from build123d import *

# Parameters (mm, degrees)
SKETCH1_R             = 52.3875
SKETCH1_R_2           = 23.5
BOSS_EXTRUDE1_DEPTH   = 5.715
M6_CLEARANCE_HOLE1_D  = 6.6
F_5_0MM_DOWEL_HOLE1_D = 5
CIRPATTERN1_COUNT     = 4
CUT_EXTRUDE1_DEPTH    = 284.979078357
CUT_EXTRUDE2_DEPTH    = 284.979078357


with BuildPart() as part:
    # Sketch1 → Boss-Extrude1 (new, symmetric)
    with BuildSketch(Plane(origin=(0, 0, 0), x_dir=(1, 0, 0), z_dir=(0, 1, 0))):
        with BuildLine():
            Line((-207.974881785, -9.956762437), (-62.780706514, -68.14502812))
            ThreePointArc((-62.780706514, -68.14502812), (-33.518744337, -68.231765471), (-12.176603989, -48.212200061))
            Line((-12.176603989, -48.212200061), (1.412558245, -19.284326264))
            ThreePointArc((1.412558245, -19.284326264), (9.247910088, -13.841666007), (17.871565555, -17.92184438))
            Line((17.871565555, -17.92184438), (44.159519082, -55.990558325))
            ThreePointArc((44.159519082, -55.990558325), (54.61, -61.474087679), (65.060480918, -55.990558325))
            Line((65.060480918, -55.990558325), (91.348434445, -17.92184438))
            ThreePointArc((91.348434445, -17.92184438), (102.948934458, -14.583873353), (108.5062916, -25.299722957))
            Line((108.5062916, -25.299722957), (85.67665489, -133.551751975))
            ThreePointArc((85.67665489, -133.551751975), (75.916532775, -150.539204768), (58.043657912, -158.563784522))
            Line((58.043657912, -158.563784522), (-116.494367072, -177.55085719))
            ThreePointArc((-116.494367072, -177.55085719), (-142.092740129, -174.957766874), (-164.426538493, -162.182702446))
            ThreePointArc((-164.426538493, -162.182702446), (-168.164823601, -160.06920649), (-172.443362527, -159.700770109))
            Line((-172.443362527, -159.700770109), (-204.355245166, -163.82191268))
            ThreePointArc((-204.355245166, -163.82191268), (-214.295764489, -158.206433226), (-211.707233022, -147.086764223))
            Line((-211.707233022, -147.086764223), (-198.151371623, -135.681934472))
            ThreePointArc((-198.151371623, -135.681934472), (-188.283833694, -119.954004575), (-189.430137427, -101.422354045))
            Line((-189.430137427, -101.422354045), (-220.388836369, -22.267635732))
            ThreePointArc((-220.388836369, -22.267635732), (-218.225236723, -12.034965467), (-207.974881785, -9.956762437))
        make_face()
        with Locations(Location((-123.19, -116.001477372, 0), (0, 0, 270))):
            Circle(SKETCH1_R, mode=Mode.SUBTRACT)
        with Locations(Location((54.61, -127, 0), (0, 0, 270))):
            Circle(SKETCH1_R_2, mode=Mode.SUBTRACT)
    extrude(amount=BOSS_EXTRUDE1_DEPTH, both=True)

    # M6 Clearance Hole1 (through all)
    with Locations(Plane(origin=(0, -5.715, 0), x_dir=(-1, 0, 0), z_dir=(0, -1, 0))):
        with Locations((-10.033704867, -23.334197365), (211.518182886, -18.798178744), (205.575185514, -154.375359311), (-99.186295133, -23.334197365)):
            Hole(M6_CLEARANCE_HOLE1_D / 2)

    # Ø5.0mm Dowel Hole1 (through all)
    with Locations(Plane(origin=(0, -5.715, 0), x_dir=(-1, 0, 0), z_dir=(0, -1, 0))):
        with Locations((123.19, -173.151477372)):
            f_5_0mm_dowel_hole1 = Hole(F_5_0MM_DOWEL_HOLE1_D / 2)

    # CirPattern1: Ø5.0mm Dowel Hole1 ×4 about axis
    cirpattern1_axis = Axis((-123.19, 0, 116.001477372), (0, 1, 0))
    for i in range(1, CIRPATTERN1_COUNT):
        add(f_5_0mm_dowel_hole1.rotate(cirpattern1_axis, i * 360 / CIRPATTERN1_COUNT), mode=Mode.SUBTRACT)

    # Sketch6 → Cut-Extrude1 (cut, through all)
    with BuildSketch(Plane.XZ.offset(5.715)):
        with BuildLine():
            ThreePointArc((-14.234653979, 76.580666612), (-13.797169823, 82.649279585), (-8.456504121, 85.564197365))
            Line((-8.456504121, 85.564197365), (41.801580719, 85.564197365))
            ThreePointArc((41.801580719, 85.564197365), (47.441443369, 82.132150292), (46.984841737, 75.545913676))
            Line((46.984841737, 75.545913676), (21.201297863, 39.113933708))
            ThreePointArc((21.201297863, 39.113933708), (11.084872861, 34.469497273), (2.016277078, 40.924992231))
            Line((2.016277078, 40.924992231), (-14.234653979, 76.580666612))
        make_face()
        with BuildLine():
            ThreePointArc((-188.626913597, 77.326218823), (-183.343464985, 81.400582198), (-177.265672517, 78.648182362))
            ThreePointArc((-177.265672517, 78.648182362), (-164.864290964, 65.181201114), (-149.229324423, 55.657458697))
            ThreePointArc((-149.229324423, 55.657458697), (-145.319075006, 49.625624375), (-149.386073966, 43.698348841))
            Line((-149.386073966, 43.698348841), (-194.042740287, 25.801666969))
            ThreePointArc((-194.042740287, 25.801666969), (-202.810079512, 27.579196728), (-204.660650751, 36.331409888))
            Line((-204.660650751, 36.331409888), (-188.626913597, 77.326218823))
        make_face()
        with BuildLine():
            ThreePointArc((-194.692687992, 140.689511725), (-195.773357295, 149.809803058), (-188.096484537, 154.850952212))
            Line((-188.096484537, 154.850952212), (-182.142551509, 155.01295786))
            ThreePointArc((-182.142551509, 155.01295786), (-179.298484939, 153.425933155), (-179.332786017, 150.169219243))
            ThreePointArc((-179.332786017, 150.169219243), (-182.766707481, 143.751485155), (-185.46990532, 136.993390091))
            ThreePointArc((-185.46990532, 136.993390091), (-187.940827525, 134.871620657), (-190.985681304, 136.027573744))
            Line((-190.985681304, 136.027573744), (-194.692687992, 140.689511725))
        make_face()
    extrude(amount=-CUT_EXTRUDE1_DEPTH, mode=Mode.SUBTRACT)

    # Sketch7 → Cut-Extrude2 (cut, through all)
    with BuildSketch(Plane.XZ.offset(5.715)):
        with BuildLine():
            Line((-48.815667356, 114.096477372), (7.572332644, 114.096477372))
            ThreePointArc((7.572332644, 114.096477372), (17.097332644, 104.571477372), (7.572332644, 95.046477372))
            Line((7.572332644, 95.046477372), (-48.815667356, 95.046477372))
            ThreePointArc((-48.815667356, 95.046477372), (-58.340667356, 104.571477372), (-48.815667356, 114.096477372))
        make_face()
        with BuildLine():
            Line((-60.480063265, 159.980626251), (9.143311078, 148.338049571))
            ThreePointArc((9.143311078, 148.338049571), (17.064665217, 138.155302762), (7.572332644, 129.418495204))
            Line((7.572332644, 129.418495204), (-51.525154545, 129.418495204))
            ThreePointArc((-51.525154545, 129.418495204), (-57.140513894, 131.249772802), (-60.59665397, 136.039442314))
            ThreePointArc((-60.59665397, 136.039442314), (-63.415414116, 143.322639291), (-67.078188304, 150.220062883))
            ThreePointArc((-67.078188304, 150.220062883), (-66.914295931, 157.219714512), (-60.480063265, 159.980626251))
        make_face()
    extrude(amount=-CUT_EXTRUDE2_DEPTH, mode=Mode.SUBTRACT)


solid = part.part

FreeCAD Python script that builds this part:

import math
import FreeCAD as App
import Part
import Sketcher
Q = App.Units.Quantity

doc = App.newDocument("Part")
body = doc.addObject("PartDesign::Body", "Body")

sketch1 = body.newObject("Sketcher::SketchObject", "Sketch")
sketch1.AttachmentSupport = (doc.getObject("XZ_Plane"), [""])
sketch1.MapMode = "FlatFace"
sketch1.addGeometry(Part.LineSegment(App.Vector(-62.780707, 68.145028, 0), App.Vector(-207.974882, 9.956762, 0)), False)
sketch1.addGeometry(Part.ArcOfCircle(Part.Circle(App.Vector(-211.518183, 18.798179, 0), App.Vector(0, 0, 1), 9.525), math.radians(158.638723), math.radians(291.839023)), False)
sketch1.addGeometry(Part.LineSegment(App.Vector(-220.388836, 22.267636, 0), App.Vector(-189.430137, 101.422354, 0)), False)
sketch1.addGeometry(Part.ArcOfCircle(Part.Circle(App.Vector(-217.679198, 112.471022, 0), App.Vector(0, 0, 1), 30.332861), math.radians(-21.361277), math.radians(49.925396)), False)
sketch1.addGeometry(Part.LineSegment(App.Vector(-198.151372, 135.681934, 0), App.Vector(-211.707233, 147.086764, 0)), False)
sketch1.addGeometry(Part.ArcOfCircle(Part.Circle(App.Vector(-205.575186, 154.375359, 0), App.Vector(0, 0, 1), 9.525), math.radians(82.641474), math.radians(229.925396)), False)
sketch1.addGeometry(Part.LineSegment(App.Vector(-204.355245, 163.821913, 0), App.Vector(-172.443363, 159.70077, 0)), False)
sketch1.addGeometry(Part.ArcOfCircle(Part.Circle(App.Vector(-171.150394, 169.712817, 0), App.Vector(0, 0, 1), 10.09519), math.radians(-97.358526), math.radians(-48.237421)), False)
sketch1.addGeometry(Part.ArcOfCircle(Part.Circle(App.Vector(-123.19, 116.001477, 0), App.Vector(0, 0, 1), 61.9125), math.radians(83.791508), math.radians(131.762579)), False)
sketch1.addGeometry(Part.LineSegment(App.Vector(-116.494367, 177.550857, 0), App.Vector(58.043658, 158.563785, 0)), False)
sketch1.addGeometry(Part.ArcOfCircle(Part.Circle(App.Vector(54.61, 127, 0), App.Vector(0, 0, 1), 31.75), math.radians(11.908795), math.radians(83.791508)), False)
sketch1.addGeometry(Part.LineSegment(App.Vector(85.676655, 133.551752, 0), App.Vector(108.506292, 25.299723, 0)), False)
sketch1.addGeometry(Part.ArcOfCircle(Part.Circle(App.Vector(99.186295, 23.334197, 0), App.Vector(0, 0, 1), 9.525), math.radians(-145.373386), math.radians(11.908795)), False)
sketch1.addGeometry(Part.LineSegment(App.Vector(91.348434, 17.921844, 0), App.Vector(65.060481, 55.990558, 0)), False)
sketch1.addGeometry(Part.ArcOfCircle(Part.Circle(App.Vector(54.61, 48.774088, 0), App.Vector(0, 0, 1), 12.7), math.radians(34.626614), math.radians(145.373386)), False)
sketch1.addGeometry(Part.LineSegment(App.Vector(44.159519, 55.990558, 0), App.Vector(17.871566, 17.921844, 0)), False)
sketch1.addGeometry(Part.ArcOfCircle(Part.Circle(App.Vector(10.033705, 23.334197, 0), App.Vector(0, 0, 1), 9.525), math.radians(-154.837733), math.radians(-34.626614)), False)
sketch1.addGeometry(Part.LineSegment(App.Vector(1.412558, 19.284326, 0), App.Vector(-12.176604, 48.2122, 0)), False)
sketch1.addGeometry(Part.ArcOfCircle(Part.Circle(App.Vector(-48.040574, 31.364736, 0), App.Vector(0, 0, 1), 39.624), math.radians(25.162267), math.radians(111.839023)), False)
sketch1.addGeometry(Part.Circle(App.Vector(54.61, 127, 0), App.Vector(0, 0, 1), 23.5), False)
sketch1.addGeometry(Part.Circle(App.Vector(-123.19, 116.001477, 0), App.Vector(0, 0, 1), 52.3875), False)
sketch1.addConstraint(Sketcher.Constraint("Coincident", 0, 2, 1, 2))
sketch1.addConstraint(Sketcher.Constraint("Coincident", 1, 1, 2, 1))
sketch1.addConstraint(Sketcher.Constraint("Coincident", 2, 2, 3, 1))
sketch1.addConstraint(Sketcher.Constraint("Coincident", 3, 2, 4, 1))
sketch1.addConstraint(Sketcher.Constraint("Coincident", 4, 2, 5, 2))
sketch1.addConstraint(Sketcher.Constraint("Coincident", 5, 1, 6, 1))
sketch1.addConstraint(Sketcher.Constraint("Coincident", 6, 2, 7, 1))
sketch1.addConstraint(Sketcher.Constraint("Coincident", 7, 2, 8, 2))
sketch1.addConstraint(Sketcher.Constraint("Coincident", 8, 1, 9, 1))
sketch1.addConstraint(Sketcher.Constraint("Coincident", 9, 2, 10, 2))
sketch1.addConstraint(Sketcher.Constraint("Coincident", 10, 1, 11, 1))
sketch1.addConstraint(Sketcher.Constraint("Coincident", 11, 2, 12, 2))
sketch1.addConstraint(Sketcher.Constraint("Coincident", 12, 1, 13, 1))
sketch1.addConstraint(Sketcher.Constraint("Coincident", 13, 2, 14, 1))
sketch1.addConstraint(Sketcher.Constraint("Coincident", 14, 2, 15, 1))
sketch1.addConstraint(Sketcher.Constraint("Coincident", 15, 2, 16, 2))
sketch1.addConstraint(Sketcher.Constraint("Coincident", 16, 1, 17, 1))
sketch1.addConstraint(Sketcher.Constraint("Coincident", 17, 2, 18, 1))
sketch1.addConstraint(Sketcher.Constraint("Coincident", 18, 2, 0, 1))
sketch1.addConstraint(Sketcher.Constraint("Coincident", 19, 3, 10, 3))
sketch1.addConstraint(Sketcher.Constraint("Coincident", 20, 3, 8, 3))
sketch1.addConstraint(Sketcher.Constraint("Radius", 14, Q("0.5 in")))
sketch1.addConstraint(Sketcher.Constraint("Radius", 10, Q("1.25 in")))
sketch1.addConstraint(Sketcher.Constraint("Radius", 18, Q("1.56 in")))
sketch1.addConstraint(Sketcher.Constraint("Diameter", 20, Q("4.125 in")))
sketch1.addConstraint(Sketcher.Constraint("DistanceY", -1, 1, 10, 3, Q("5 in")))
sketch1.addConstraint(Sketcher.Constraint("Radius", 1, Q("0.375 in")))
sketch1.addConstraint(Sketcher.Constraint("Radius", 5, Q("0.375 in")))
sketch1.addConstraint(Sketcher.Constraint("Radius", 8, Q("2.4375 in")))
sketch1.addConstraint(Sketcher.Constraint("Radius", 12, Q("0.375 in")))
sketch1.addConstraint(Sketcher.Constraint("Radius", 16, Q("0.375 in")))
sketch1.addConstraint(Sketcher.Constraint("DistanceX", 8, 3, 10, 3, Q("7 in")))
sketch1.addConstraint(Sketcher.Constraint("DistanceX", 8, 3, 14, 3, Q("7 in")))
sketch1.addConstraint(Sketcher.Constraint("Diameter", 19, Q("47 mm")))
sketch1.addConstraint(Sketcher.Constraint("DistanceX", 8, 3, -1, 1, Q("4.85 in")))
sketch1.addConstraint(Sketcher.Constraint("Radius", 3, Q("30.332861 mm")))
sketch1.addConstraint(Sketcher.Constraint("Radius", 7, Q("10.09519 mm")))
sketch1.addConstraint(Sketcher.Constraint("DistanceX", 1, 3, 0, 2, Q("0.1395 in")))
sketch1.addConstraint(Sketcher.Constraint("DistanceX", 3, 3, -1, 1, Q("217.679198 mm")))
sketch1.addConstraint(Sketcher.Constraint("DistanceY", -1, 1, 17, 2, Q("48.2122 mm")))
sketch1.addConstraint(Sketcher.Constraint("DistanceY", 1, 3, 8, 3, Q("97.203299 mm")))
sketch1.addConstraint(Sketcher.Constraint("DistanceY", 16, 1, 18, 2, Q("48.860702 mm")))
sketch1.addConstraint(Sketcher.Constraint("Distance", 0, Q("156.42002 mm")))
sketch1.addConstraint(Sketcher.Constraint("Distance", 2, Q("84.993591 mm")))
sketch1.addConstraint(Sketcher.Constraint("Distance", 4, Q("17.715291 mm")))
sketch1.addConstraint(Sketcher.Constraint("Distance", 9, Q("175.567739 mm")))
sketch1.addConstraint(Sketcher.Constraint("Distance", 11, Q("110.633151 mm")))
sketch1.addConstraint(Sketcher.Constraint("DistanceY", -1, 1, 1, 3, Q("18.798179 mm")))
sketch1.addConstraint(Sketcher.Constraint("DistanceY", -1, 1, 3, 3, Q("112.471022 mm")))
sketch1.addConstraint(Sketcher.Constraint("DistanceY", -1, 1, 5, 3, Q("154.375359 mm")))
sketch1.addConstraint(Sketcher.Constraint("DistanceX", 0, 2, -1, 1, Q("207.974882 mm")))
sketch1.addConstraint(Sketcher.Constraint("DistanceX", 3, 2, -1, 1, Q("198.151372 mm")))
sketch1.addConstraint(Sketcher.Constraint("DistanceY", -1, 1, 6, 2, Q("159.70077 mm")))
sketch1.addConstraint(Sketcher.Constraint("DistanceX", 7, 2, -1, 1, Q("164.426538 mm")))
sketch1.addConstraint(Sketcher.Constraint("DistanceY", -1, 1, 10, 1, Q("133.551752 mm")))
sketch1.addConstraint(Sketcher.Constraint("DistanceX", -1, 1, 11, 2, Q("108.506292 mm")))
sketch1.addConstraint(Sketcher.Constraint("DistanceX", -1, 1, 13, 2, Q("65.060481 mm")))
sketch1.addConstraint(Sketcher.Constraint("DistanceY", -1, 1, 13, 2, Q("55.990558 mm")))
sketch1.addConstraint(Sketcher.Constraint("DistanceX", -1, 1, 14, 2, Q("44.159519 mm")))
sketch1.addConstraint(Sketcher.Constraint("DistanceX", -1, 1, 16, 1, Q("1.412558 mm")))
sketch1.addConstraint(Sketcher.Constraint("DistanceY", -1, 1, 18, 2, Q("68.145028 mm")))
sketch1.addConstraint(Sketcher.Constraint("DistanceX", 5, 3, 7, 3, Q("34.424792 mm")))
sketch1.addConstraint(Sketcher.Constraint("DistanceX", 1, 3, 7, 3, Q("40.367789 mm")))
sketch1.addConstraint(Sketcher.Constraint("DistanceY", 12, 3, 8, 3, Q("92.66728 mm")))
sketch1.addConstraint(Sketcher.Constraint("DistanceY", 16, 3, 14, 3, Q("25.43989 mm")))
sketch1.addConstraint(Sketcher.Constraint("DistanceX", 18, 3, 16, 3, Q("58.074279 mm")))
sketch1.addConstraint(Sketcher.Constraint("DistanceX", 1, 1, 3, 3, Q("2.709638 mm")))
sketch1.addConstraint(Sketcher.Constraint("DistanceX", 5, 3, 5, 1, Q("1.21994 mm")))
sketch1.addConstraint(Sketcher.Constraint("DistanceX", 7, 2, 8, 1, Q("47.932171 mm")))
sketch1.addConstraint(Sketcher.Constraint("DistanceX", 12, 1, 12, 3, Q("7.837861 mm")))
sketch1.addConstraint(Sketcher.Constraint("DistanceX", 16, 3, 15, 2, Q("7.837861 mm")))
pad1 = body.newObject("PartDesign::Pad", "Pad")
pad1.Profile = sketch1
pad1.Length = Q("0.45 in")
pad1.Midplane = True

sketch2 = body.newObject("Sketcher::SketchObject", "Sketch001")
sketch2.AttachmentSupport = (doc.getObject("XZ_Plane"), [""])
sketch2.MapMode = "FlatFace"
sketch2.AttachmentOffset = App.Placement(App.Vector(0, 0, 0.225 * 25.4), App.Rotation())
sketch2.addGeometry(Part.Circle(App.Vector(10.033705, 23.334197, 0), App.Vector(0, 0, 1), 3.3), False)
sketch2.addGeometry(Part.Circle(App.Vector(-211.518183, 18.798179, 0), App.Vector(0, 0, 1), 3.3), False)
sketch2.addGeometry(Part.Circle(App.Vector(-205.575186, 154.375359, 0), App.Vector(0, 0, 1), 3.3), False)
sketch2.addGeometry(Part.Circle(App.Vector(99.186295, 23.334197, 0), App.Vector(0, 0, 1), 3.3), False)
sketch2.addConstraint(Sketcher.Constraint("Equal", 0, 1))
sketch2.addConstraint(Sketcher.Constraint("Equal", 1, 2))
sketch2.addConstraint(Sketcher.Constraint("Equal", 2, 3))
sketch2.addConstraint(Sketcher.Constraint("Horizontal", 0, 3, 3, 3))
sketch2.addConstraint(Sketcher.Constraint("Diameter", 0, Q("6.6 mm")))
sketch2.addConstraint(Sketcher.Constraint("DistanceY", -1, 1, 1, 3, Q("18.798179 mm")))
sketch2.addConstraint(Sketcher.Constraint("DistanceY", -1, 1, 2, 3, Q("154.375359 mm")))
sketch2.addConstraint(Sketcher.Constraint("DistanceY", 1, 3, 0, 3, Q("4.536019 mm")))
sketch2.addConstraint(Sketcher.Constraint("DistanceX", 2, 3, 0, 3, Q("215.60889 mm")))
sketch2.addConstraint(Sketcher.Constraint("DistanceX", 0, 3, 3, 3, Q("89.15259 mm")))
sketch2.addConstraint(Sketcher.Constraint("DistanceX", 1, 3, 3, 3, Q("310.704478 mm")))
sketch2.addConstraint(Sketcher.Constraint("DistanceX", -1, 1, 0, 3, Q("10.033705 mm")))
doc.recompute()
hole = body.newObject("PartDesign::Hole", "Hole")
hole.Profile = sketch2
hole.ThreadType = "None"
hole.Diameter = 6.6
hole.DepthType = "ThroughAll"

sketch3 = body.newObject("Sketcher::SketchObject", "Sketch002")
sketch3.AttachmentSupport = (doc.getObject("XZ_Plane"), [""])
sketch3.MapMode = "FlatFace"
sketch3.AttachmentOffset = App.Placement(App.Vector(0, 0, 0.225 * 25.4), App.Rotation())
sketch3.addGeometry(Part.Circle(App.Vector(-123.19, 173.151477, 0), App.Vector(0, 0, 1), 2.5), False)
sketch3.addConstraint(Sketcher.Constraint("Diameter", 0, Q("5 mm")))
sketch3.addConstraint(Sketcher.Constraint("DistanceX", 0, 3, -1, 1, Q("4.85 in")))
sketch3.addConstraint(Sketcher.Constraint("DistanceY", -1, 1, 0, 3, Q("173.151477 mm")))
doc.recompute()
hole2 = body.newObject("PartDesign::Hole", "Hole001")
hole2.Profile = sketch3
hole2.ThreadType = "None"
hole2.Diameter = 5
hole2.DepthType = "ThroughAll"
doc.recompute()

datumline = body.newObject("PartDesign::Line", "DatumLine")
datumline.Placement = App.Placement(App.Vector(-123.19, 0, 116.001477), App.Rotation(App.Vector(0, 0, 1), App.Vector(0, 1, 0)))
polarpattern = body.newObject("PartDesign::PolarPattern", "PolarPattern")
polarpattern.Originals = [hole2]
polarpattern.Axis = (datumline, [""])
polarpattern.Angle = 360
polarpattern.Occurrences = 4
body.Tip = polarpattern

sketch4 = body.newObject("Sketcher::SketchObject", "Sketch003")
sketch4.AttachmentSupport = (doc.getObject("XZ_Plane"), [""])
sketch4.MapMode = "FlatFace"
sketch4.AttachmentOffset = App.Placement(App.Vector(0, 0, 0.225 * 25.4), App.Rotation())
sketch4.addGeometry(Part.ArcOfCircle(Part.Circle(App.Vector(-8.456504, 79.214197, 0), App.Vector(0, 0, 1), 6.35), math.radians(90), math.radians(204.502267)), False)
sketch4.addGeometry(Part.LineSegment(App.Vector(-14.234654, 76.580667, 0), App.Vector(2.016277, 40.924992, 0)), False)
sketch4.addGeometry(Part.ArcOfCircle(Part.Circle(App.Vector(12.129384, 45.534284, 0), App.Vector(0, 0, 1), 11.113978), math.radians(-155.497733), math.radians(-35.287705)), False)
sketch4.addGeometry(Part.LineSegment(App.Vector(21.201298, 39.113934, 0), App.Vector(46.984842, 75.545914, 0)), False)
sketch4.addGeometry(Part.ArcOfCircle(Part.Circle(App.Vector(41.801581, 79.214197, 0), App.Vector(0, 0, 1), 6.35), math.radians(-35.287705), math.radians(90)), False)
sketch4.addGeometry(Part.LineSegment(App.Vector(41.801581, 85.564197, 0), App.Vector(-8.456504, 85.564197, 0)), False)
sketch4.addGeometry(Part.ArcOfCircle(Part.Circle(App.Vector(-182.594869, 74.966988, 0), App.Vector(0, 0, 1), 6.477), math.radians(34.635153), math.radians(158.638723)), False)
sketch4.addGeometry(Part.LineSegment(App.Vector(-188.626914, 77.326219, 0), App.Vector(-204.660651, 36.33141, 0)), False)
sketch4.addGeometry(Part.ArcOfCircle(Part.Circle(App.Vector(-197.073399, 33.363912, 0), App.Vector(0, 0, 1), 8.146928), math.radians(158.638723), math.radians(291.839023)), False)
sketch4.addGeometry(Part.LineSegment(App.Vector(-194.04274, 25.801667, 0), App.Vector(-149.386074, 43.698349, 0)), False)
sketch4.addGeometry(Part.ArcOfCircle(Part.Circle(App.Vector(-151.795519, 49.710512, 0), App.Vector(0, 0, 1), 6.477), math.radians(-68.160977), math.radians(66.659098)), False)
sketch4.addGeometry(Part.ArcOfCircle(Part.Circle(App.Vector(-123.19, 116.001477, 0), App.Vector(0, 0, 1), 65.7225), math.radians(-145.364847), math.radians(-113.340902)), False)
sketch4.addGeometry(Part.ArcOfCircle(Part.Circle(App.Vector(-187.859009, 146.123409, 0), App.Vector(0, 0, 1), 8.730773), math.radians(91.558625), math.radians(218.490467)), False)
sketch4.addGeometry(Part.LineSegment(App.Vector(-194.692688, 140.689512, 0), App.Vector(-190.985681, 136.027574, 0)), False)
sketch4.addGeometry(Part.ArcOfCircle(Part.Circle(App.Vector(-188.490631, 138.011549, 0), App.Vector(0, 0, 1), 3.1877), math.radians(-141.509533), math.radians(-18.626778)), False)
sketch4.addGeometry(Part.ArcOfCircle(Part.Circle(App.Vector(-123.19, 116.001477, 0), App.Vector(0, 0, 1), 65.7225), math.radians(148.67587), math.radians(161.373222)), False)
sketch4.addGeometry(Part.ArcOfCircle(Part.Circle(App.Vector(-182.055847, 151.826437, 0), App.Vector(0, 0, 1), 3.1877), math.radians(-31.32413), math.radians(91.558625)), False)
sketch4.addGeometry(Part.LineSegment(App.Vector(-182.142552, 155.012958, 0), App.Vector(-188.096485, 154.850952, 0)), False)
sketch4.addConstraint(Sketcher.Constraint("Coincident", 0, 2, 1, 1))
sketch4.addConstraint(Sketcher.Constraint("Coincident", 1, 2, 2, 1))
sketch4.addConstraint(Sketcher.Constraint("Coincident", 2, 2, 3, 1))
sketch4.addConstraint(Sketcher.Constraint("Coincident", 3, 2, 4, 1))
sketch4.addConstraint(Sketcher.Constraint("Coincident", 4, 2, 5, 1))
sketch4.addConstraint(Sketcher.Constraint("Coincident", 5, 2, 0, 1))
sketch4.addConstraint(Sketcher.Constraint("Coincident", 6, 2, 7, 1))
sketch4.addConstraint(Sketcher.Constraint("Coincident", 7, 2, 8, 1))
sketch4.addConstraint(Sketcher.Constraint("Coincident", 8, 2, 9, 1))
sketch4.addConstraint(Sketcher.Constraint("Coincident", 9, 2, 10, 1))
sketch4.addConstraint(Sketcher.Constraint("Coincident", 10, 2, 11, 2))
sketch4.addConstraint(Sketcher.Constraint("Coincident", 11, 1, 6, 1))
sketch4.addConstraint(Sketcher.Constraint("Coincident", 12, 2, 13, 1))
sketch4.addConstraint(Sketcher.Constraint("Coincident", 13, 2, 14, 1))
sketch4.addConstraint(Sketcher.Constraint("Coincident", 14, 2, 15, 2))
sketch4.addConstraint(Sketcher.Constraint("Coincident", 15, 1, 16, 1))
sketch4.addConstraint(Sketcher.Constraint("Coincident", 16, 2, 17, 1))
sketch4.addConstraint(Sketcher.Constraint("Coincident", 17, 2, 12, 1))
sketch4.addConstraint(Sketcher.Constraint("Horizontal", 5))
sketch4.addConstraint(Sketcher.Constraint("Coincident", 15, 3, 11, 3))
sketch4.addConstraint(Sketcher.Constraint("Radius", 0, Q("0.25 in")))
sketch4.addConstraint(Sketcher.Constraint("Radius", 4, Q("0.25 in")))
sketch4.addConstraint(Sketcher.Constraint("Radius", 6, Q("0.255 in")))
sketch4.addConstraint(Sketcher.Constraint("Radius", 10, Q("0.255 in")))
sketch4.addConstraint(Sketcher.Constraint("Radius", 11, Q("2.5875 in")))
sketch4.addConstraint(Sketcher.Constraint("Radius", 14, Q("0.1255 in")))
sketch4.addConstraint(Sketcher.Constraint("Radius", 15, Q("2.5875 in")))
sketch4.addConstraint(Sketcher.Constraint("Radius", 16, Q("0.1255 in")))
sketch4.addConstraint(Sketcher.Constraint("DistanceX", 11, 3, -1, 1, Q("4.85 in")))
sketch4.addConstraint(Sketcher.Constraint("Radius", 2, Q("11.113978 mm")))
sketch4.addConstraint(Sketcher.Constraint("Radius", 8, Q("8.146928 mm")))
sketch4.addConstraint(Sketcher.Constraint("Radius", 12, Q("8.730773 mm")))
sketch4.addConstraint(Sketcher.Constraint("DistanceX", 2, 2, 3, 2, Q("1.0151002 in")))
sketch4.addConstraint(Sketcher.Constraint("DistanceX", 8, 3, -1, 1, Q("197.073399 mm")))
sketch4.addConstraint(Sketcher.Constraint("DistanceY", 8, 3, 10, 3, Q("16.3466 mm")))
sketch4.addConstraint(Sketcher.Constraint("DistanceX", 10, 3, 4, 3, Q("193.597099 mm")))
sketch4.addConstraint(Sketcher.Constraint("DistanceX", 0, 3, 2, 2, Q("29.657802 mm")))
sketch4.addConstraint(Sketcher.Constraint("DistanceX", 11, 1, 9, 2, Q("27.879599 mm")))
sketch4.addConstraint(Sketcher.Constraint("DistanceX", 12, 2, 15, 1, Q("15.359902 mm")))
sketch4.addConstraint(Sketcher.Constraint("DistanceX", 17, 2, 15, 1, Q("8.763699 mm")))
sketch4.addConstraint(Sketcher.Constraint("DistanceX", 5, 2, 5, 1, Q("50.258085 mm")))
sketch4.addConstraint(Sketcher.Constraint("DistanceX", -1, 1, 4, 3, Q("41.801581 mm")))
sketch4.addConstraint(Sketcher.Constraint("DistanceX", 6, 3, -1, 1, Q("182.594869 mm")))
sketch4.addConstraint(Sketcher.Constraint("DistanceY", -1, 1, 6, 3, Q("74.966988 mm")))
sketch4.addConstraint(Sketcher.Constraint("DistanceX", 12, 3, -1, 1, Q("187.859009 mm")))
sketch4.addConstraint(Sketcher.Constraint("DistanceY", -1, 1, 12, 3, Q("146.123409 mm")))
sketch4.addConstraint(Sketcher.Constraint("DistanceX", 14, 3, -1, 1, Q("188.490631 mm")))
sketch4.addConstraint(Sketcher.Constraint("DistanceX", -1, 1, 3, 2, Q("46.984842 mm")))
sketch4.addConstraint(Sketcher.Constraint("DistanceX", -1, 1, 4, 2, Q("41.801581 mm")))
sketch4.addConstraint(Sketcher.Constraint("DistanceY", -1, 1, 6, 2, Q("77.326219 mm")))
sketch4.addConstraint(Sketcher.Constraint("DistanceX", 7, 2, -1, 1, Q("204.660651 mm")))
sketch4.addConstraint(Sketcher.Constraint("DistanceX", 8, 2, -1, 1, Q("194.04274 mm")))
sketch4.addConstraint(Sketcher.Constraint("DistanceY", -1, 1, 9, 2, Q("43.698349 mm")))
sketch4.addConstraint(Sketcher.Constraint("DistanceY", -1, 1, 10, 2, Q("55.657459 mm")))
sketch4.addConstraint(Sketcher.Constraint("DistanceY", -1, 1, 12, 2, Q("140.689512 mm")))
sketch4.addConstraint(Sketcher.Constraint("DistanceX", 13, 2, -1, 1, Q("190.985681 mm")))
sketch4.addConstraint(Sketcher.Constraint("DistanceY", -1, 1, 14, 2, Q("136.99339 mm")))
sketch4.addConstraint(Sketcher.Constraint("DistanceX", 16, 2, -1, 1, Q("182.142552 mm")))
sketch4.addConstraint(Sketcher.Constraint("DistanceX", 0, 3, 2, 3, Q("20.585889 mm")))
sketch4.addConstraint(Sketcher.Constraint("DistanceY", 6, 3, 0, 3, Q("4.247209 mm")))
sketch4.addConstraint(Sketcher.Constraint("DistanceY", 12, 3, 16, 3, Q("5.703028 mm")))
sketch4.addConstraint(Sketcher.Constraint("DistanceX", 0, 2, 0, 3, Q("5.77815 mm")))
sketch4.addConstraint(Sketcher.Constraint("DistanceY", 1, 2, 2, 3, Q("4.609292 mm")))
sketch4.addConstraint(Sketcher.Constraint("DistanceY", 2, 2, 3, 2, Q("36.43198 mm")))
pocket1 = body.newObject("PartDesign::Pocket", "Pocket")
pocket1.Profile = sketch4
pocket1.Type = "ThroughAll"

sketch5 = body.newObject("Sketcher::SketchObject", "Sketch004")
sketch5.AttachmentSupport = (doc.getObject("XZ_Plane"), [""])
sketch5.MapMode = "FlatFace"
sketch5.AttachmentOffset = App.Placement(App.Vector(0, 0, 0.225 * 25.4), App.Rotation())
sketch5.addGeometry(Part.LineSegment(App.Vector(7.572333, 114.096477, 0), App.Vector(-48.815667, 114.096477, 0)), False)
sketch5.addGeometry(Part.ArcOfCircle(Part.Circle(App.Vector(-48.815667, 104.571477, 0), App.Vector(0, 0, 1), 9.525), math.radians(90), math.radians(270)), False)
sketch5.addGeometry(Part.LineSegment(App.Vector(-48.815667, 95.046477, 0), App.Vector(7.572333, 95.046477, 0)), False)
sketch5.addGeometry(Part.ArcOfCircle(Part.Circle(App.Vector(7.572333, 104.571477, 0), App.Vector(0, 0, 1), 9.525), math.radians(-90), math.radians(90)), False)
sketch5.addGeometry(Part.LineSegment(App.Vector(9.143311, 148.33805, 0), App.Vector(-60.480063, 159.980626, 0)), False)
sketch5.addGeometry(Part.ArcOfCircle(Part.Circle(App.Vector(-61.548329, 153.592329, 0), App.Vector(0, 0, 1), 6.477), math.radians(80.506709), math.radians(211.376032)), False)
sketch5.addGeometry(Part.ArcOfCircle(Part.Circle(App.Vector(-123.19, 116.001477, 0), App.Vector(0, 0, 1), 65.7225), math.radians(17.751392), math.radians(31.376032)), False)
sketch5.addGeometry(Part.ArcOfCircle(Part.Circle(App.Vector(-51.525155, 138.943495, 0), App.Vector(0, 0, 1), 9.525), math.radians(-162.248608), math.radians(-90)), False)
sketch5.addGeometry(Part.LineSegment(App.Vector(-51.525155, 129.418495, 0), App.Vector(7.572333, 129.418495, 0)), False)
sketch5.addGeometry(Part.ArcOfCircle(Part.Circle(App.Vector(7.572333, 138.943495, 0), App.Vector(0, 0, 1), 9.525), math.radians(-90), math.radians(80.506709)), False)
sketch5.addConstraint(Sketcher.Constraint("Tangent", 0, 2, 1, 1))
sketch5.addConstraint(Sketcher.Constraint("Tangent", 1, 2, 2, 1))
sketch5.addConstraint(Sketcher.Constraint("Tangent", 2, 2, 3, 1))
sketch5.addConstraint(Sketcher.Constraint("Tangent", 3, 2, 0, 1))
sketch5.addConstraint(Sketcher.Constraint("Tangent", 4, 2, 5, 1))
sketch5.addConstraint(Sketcher.Constraint("Tangent", 5, 2, 6, 2))
sketch5.addConstraint(Sketcher.Constraint("Tangent", 6, 1, 7, 1))
sketch5.addConstraint(Sketcher.Constraint("Tangent", 7, 2, 8, 1))
sketch5.addConstraint(Sketcher.Constraint("Tangent", 8, 2, 9, 1))
sketch5.addConstraint(Sketcher.Constraint("Tangent", 9, 2, 4, 1))
sketch5.addConstraint(Sketcher.Constraint("Horizontal", 0))
sketch5.addConstraint(Sketcher.Constraint("Horizontal", 2))
sketch5.addConstraint(Sketcher.Constraint("Horizontal", 8))
sketch5.addConstraint(Sketcher.Constraint("Equal", 3, 7))
sketch5.addConstraint(Sketcher.Constraint("Equal", 7, 9))
sketch5.addConstraint(Sketcher.Constraint("Vertical", 3, 3, 9, 3))
sketch5.addConstraint(Sketcher.Constraint("Radius", 1, Q("0.375 in")))
sketch5.addConstraint(Sketcher.Constraint("Radius", 5, Q("0.255 in")))
sketch5.addConstraint(Sketcher.Constraint("DistanceX", 0, 2, 0, 1, Q("2.22 in")))
sketch5.addConstraint(Sketcher.Constraint("Radius", 6, Q("2.5875 in")))
sketch5.addConstraint(Sketcher.Constraint("DistanceX", 6, 3, -1, 1, Q("4.85 in")))
sketch5.addConstraint(Sketcher.Constraint("DistanceY", 1, 3, 6, 3, Q("0.45 in")))
sketch5.addConstraint(Sketcher.Constraint("Distance", 4, Q("70.590112 mm")))
sketch5.addConstraint(Sketcher.Constraint("DistanceX", 8, 1, 8, 2, Q("59.097487 mm")))
sketch5.addConstraint(Sketcher.Constraint("DistanceX", 5, 3, -1, 1, Q("61.548329 mm")))
sketch5.addConstraint(Sketcher.Constraint("DistanceY", -1, 1, 5, 3, Q("153.592329 mm")))
pocket2 = body.newObject("PartDesign::Pocket", "Pocket001")
pocket2.Profile = sketch5
pocket2.Type = "ThroughAll"

doc.recompute()
